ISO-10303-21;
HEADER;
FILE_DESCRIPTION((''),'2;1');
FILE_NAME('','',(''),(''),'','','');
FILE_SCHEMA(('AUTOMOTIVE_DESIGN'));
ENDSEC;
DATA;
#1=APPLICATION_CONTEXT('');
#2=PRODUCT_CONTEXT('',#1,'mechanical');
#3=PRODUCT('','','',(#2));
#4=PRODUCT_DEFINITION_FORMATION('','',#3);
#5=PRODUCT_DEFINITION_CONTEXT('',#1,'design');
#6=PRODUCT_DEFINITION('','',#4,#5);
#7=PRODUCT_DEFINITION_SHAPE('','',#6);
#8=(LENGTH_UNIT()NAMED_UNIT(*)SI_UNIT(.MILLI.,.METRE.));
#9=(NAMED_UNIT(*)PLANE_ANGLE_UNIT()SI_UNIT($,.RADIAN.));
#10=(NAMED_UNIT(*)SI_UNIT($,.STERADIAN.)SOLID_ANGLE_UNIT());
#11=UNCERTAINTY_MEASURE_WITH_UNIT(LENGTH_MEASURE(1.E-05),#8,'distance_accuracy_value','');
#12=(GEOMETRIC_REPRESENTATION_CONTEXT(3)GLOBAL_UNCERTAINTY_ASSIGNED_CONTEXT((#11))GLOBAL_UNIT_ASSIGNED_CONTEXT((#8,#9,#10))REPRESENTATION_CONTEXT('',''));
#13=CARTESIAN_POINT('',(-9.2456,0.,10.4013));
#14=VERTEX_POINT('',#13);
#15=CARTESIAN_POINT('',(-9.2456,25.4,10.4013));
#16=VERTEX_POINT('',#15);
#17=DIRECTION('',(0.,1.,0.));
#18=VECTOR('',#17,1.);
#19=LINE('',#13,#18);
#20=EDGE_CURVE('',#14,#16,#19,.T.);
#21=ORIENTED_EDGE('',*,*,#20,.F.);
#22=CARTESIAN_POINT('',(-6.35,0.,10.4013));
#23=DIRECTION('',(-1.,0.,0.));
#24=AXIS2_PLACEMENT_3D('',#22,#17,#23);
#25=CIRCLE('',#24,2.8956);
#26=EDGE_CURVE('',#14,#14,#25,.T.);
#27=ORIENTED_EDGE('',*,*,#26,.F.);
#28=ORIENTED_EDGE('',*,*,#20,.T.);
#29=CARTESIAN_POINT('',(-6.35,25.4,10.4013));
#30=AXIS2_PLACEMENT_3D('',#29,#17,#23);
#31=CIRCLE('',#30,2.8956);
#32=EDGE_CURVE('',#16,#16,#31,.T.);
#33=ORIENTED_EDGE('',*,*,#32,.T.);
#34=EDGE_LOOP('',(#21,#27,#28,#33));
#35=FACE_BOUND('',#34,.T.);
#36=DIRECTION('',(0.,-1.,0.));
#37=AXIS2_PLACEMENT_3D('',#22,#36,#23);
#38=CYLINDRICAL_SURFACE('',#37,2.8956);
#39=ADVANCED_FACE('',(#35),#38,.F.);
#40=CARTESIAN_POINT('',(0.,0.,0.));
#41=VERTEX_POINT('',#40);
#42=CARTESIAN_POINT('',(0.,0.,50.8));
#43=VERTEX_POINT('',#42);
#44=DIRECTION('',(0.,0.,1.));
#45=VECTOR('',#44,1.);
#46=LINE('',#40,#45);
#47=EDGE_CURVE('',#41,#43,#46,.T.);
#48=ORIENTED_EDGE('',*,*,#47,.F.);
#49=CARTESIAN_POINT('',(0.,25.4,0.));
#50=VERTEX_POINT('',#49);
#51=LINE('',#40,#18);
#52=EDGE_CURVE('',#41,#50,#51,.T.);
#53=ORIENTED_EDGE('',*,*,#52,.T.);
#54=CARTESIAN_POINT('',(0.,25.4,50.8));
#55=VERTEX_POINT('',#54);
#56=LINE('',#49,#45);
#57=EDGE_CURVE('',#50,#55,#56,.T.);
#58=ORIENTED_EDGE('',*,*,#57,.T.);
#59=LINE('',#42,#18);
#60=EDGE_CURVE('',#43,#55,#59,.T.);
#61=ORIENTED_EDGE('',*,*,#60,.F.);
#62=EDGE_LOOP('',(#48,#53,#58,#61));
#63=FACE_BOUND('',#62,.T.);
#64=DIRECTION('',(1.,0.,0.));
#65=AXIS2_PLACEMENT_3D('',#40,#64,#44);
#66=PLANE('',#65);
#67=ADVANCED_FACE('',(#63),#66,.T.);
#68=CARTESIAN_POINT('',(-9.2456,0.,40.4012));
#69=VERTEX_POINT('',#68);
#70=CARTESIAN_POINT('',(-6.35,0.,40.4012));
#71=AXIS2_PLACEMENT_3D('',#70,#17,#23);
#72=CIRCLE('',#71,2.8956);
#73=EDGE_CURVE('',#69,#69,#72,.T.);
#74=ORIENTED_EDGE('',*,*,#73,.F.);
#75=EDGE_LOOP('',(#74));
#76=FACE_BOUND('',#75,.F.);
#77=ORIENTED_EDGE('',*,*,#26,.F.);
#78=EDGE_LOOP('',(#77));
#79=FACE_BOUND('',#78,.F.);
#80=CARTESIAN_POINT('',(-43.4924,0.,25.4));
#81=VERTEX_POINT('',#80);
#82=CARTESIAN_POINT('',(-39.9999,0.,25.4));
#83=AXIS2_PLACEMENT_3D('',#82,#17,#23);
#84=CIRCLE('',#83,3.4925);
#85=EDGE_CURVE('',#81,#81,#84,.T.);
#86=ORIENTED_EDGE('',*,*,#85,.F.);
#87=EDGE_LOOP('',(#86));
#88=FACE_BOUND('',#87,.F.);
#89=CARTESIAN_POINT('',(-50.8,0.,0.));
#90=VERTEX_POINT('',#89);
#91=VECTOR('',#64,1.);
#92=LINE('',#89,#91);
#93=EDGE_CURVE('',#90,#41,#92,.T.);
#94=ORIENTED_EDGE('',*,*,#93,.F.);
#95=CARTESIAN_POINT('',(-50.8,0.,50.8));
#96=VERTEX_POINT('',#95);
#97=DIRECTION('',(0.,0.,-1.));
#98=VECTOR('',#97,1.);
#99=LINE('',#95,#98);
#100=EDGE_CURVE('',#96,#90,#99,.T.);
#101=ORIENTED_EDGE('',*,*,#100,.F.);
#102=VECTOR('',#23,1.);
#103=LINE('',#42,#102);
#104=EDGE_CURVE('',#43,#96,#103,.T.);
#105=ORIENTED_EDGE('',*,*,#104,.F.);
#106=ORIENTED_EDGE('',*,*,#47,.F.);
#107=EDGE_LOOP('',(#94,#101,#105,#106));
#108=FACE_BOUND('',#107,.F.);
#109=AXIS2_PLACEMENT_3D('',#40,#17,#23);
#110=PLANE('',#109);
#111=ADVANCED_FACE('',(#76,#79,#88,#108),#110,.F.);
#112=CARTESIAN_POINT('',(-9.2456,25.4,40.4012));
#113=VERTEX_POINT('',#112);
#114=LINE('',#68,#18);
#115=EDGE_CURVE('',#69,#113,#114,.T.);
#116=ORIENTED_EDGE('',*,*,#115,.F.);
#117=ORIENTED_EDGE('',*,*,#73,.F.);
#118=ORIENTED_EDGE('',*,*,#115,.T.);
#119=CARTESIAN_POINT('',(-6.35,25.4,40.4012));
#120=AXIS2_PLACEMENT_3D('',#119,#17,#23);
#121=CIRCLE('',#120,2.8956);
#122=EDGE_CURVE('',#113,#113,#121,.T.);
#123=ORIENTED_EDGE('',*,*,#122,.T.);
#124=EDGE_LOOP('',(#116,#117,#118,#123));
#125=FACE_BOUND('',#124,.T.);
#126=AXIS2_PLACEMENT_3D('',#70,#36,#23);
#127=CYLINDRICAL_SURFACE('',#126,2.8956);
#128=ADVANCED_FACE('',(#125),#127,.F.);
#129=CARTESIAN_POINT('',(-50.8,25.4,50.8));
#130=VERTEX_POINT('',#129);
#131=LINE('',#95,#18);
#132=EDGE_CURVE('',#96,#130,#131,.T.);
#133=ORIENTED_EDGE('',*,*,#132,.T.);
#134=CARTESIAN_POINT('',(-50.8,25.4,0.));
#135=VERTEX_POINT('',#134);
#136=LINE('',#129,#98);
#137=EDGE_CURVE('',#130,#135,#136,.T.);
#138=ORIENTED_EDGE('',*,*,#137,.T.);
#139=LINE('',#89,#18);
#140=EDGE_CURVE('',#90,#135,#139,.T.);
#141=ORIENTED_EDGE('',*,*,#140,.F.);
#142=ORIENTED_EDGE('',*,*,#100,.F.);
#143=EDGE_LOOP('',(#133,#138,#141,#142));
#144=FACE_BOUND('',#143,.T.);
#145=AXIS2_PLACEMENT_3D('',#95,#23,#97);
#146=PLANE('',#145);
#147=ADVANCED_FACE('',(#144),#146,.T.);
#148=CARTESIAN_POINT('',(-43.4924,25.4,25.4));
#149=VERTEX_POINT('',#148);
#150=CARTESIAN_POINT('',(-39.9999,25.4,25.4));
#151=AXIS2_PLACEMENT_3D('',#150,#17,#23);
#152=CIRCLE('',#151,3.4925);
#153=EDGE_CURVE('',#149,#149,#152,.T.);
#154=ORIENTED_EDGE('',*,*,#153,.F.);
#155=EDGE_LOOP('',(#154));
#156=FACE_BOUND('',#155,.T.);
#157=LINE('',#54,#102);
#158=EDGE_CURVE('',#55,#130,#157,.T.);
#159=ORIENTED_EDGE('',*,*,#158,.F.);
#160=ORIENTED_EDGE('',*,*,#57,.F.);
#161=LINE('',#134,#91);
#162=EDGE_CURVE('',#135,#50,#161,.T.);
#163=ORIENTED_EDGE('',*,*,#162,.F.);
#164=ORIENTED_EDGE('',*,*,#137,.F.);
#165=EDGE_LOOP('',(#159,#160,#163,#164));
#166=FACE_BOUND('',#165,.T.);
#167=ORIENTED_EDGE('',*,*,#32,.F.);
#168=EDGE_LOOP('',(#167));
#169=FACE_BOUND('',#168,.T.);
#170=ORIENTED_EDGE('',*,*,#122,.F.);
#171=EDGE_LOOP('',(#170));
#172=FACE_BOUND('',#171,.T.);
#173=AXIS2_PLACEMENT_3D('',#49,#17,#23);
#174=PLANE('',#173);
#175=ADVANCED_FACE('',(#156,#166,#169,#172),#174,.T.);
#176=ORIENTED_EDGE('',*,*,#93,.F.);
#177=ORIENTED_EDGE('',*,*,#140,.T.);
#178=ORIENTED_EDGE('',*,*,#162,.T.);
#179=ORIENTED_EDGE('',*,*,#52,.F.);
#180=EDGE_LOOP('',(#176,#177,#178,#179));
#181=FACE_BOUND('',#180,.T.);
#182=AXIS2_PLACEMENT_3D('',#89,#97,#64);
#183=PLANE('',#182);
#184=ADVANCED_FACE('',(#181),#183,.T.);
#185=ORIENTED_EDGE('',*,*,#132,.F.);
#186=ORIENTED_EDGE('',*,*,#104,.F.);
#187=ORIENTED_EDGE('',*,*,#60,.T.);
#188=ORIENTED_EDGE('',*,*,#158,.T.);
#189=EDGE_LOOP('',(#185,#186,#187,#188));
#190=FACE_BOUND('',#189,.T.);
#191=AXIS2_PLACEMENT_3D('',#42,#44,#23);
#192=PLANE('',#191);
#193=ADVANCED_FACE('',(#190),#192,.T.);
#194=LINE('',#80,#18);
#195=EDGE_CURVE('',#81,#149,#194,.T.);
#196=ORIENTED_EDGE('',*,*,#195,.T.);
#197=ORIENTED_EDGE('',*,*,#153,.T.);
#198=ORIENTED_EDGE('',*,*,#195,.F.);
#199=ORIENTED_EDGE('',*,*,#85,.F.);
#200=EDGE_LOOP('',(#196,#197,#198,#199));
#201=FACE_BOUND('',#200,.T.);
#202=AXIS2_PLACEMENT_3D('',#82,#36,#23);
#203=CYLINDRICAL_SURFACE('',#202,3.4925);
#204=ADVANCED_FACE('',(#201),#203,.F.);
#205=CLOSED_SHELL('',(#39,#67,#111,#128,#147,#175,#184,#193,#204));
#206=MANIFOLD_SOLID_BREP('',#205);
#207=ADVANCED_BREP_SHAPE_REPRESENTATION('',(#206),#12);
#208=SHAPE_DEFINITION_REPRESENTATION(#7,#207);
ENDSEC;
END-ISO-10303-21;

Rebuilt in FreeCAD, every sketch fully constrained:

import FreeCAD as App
import Part
import Sketcher
from FreeCAD import Vector
Q = App.Units.Quantity

doc = App.newDocument("Part")
body = doc.addObject("PartDesign::Body", "Body")

# Sketch on XZ plane
sketch1 = body.newObject("Sketcher::SketchObject", "Sketch")
sketch1.AttachmentSupport = (doc.getObject("XZ_Plane"), [""])
sketch1.MapMode = "FlatFace"
sketch1.addGeometry(Part.LineSegment(Vector(0, 50.8, 0), Vector(0, 0, 0)), False)
sketch1.addGeometry(Part.LineSegment(Vector(0, 0, 0), Vector(-50.8, 0, 0)), False)
sketch1.addGeometry(Part.LineSegment(Vector(-50.8, 0, 0), Vector(-50.8, 50.8, 0)), False)
sketch1.addGeometry(Part.LineSegment(Vector(-50.8, 50.8, 0), Vector(0, 50.8, 0)), False)
sketch1.addGeometry(Part.Circle(Vector(-6.3, 10.4, 0), Vector(0, 0, 1), 2.9), False)
sketch1.addGeometry(Part.Circle(Vector(-40, 25.4, 0), Vector(0, 0, 1), 3.5), False)
sketch1.addGeometry(Part.Circle(Vector(-6.3, 40.4, 0), Vector(0, 0, 1), 2.9), False)
sketch1.addConstraint(Sketcher.Constraint("Coincident", 0, 2, 1, 1))
sketch1.addConstraint(Sketcher.Constraint("Coincident", 1, 2, 2, 1))
sketch1.addConstraint(Sketcher.Constraint("Coincident", 2, 2, 3, 1))
sketch1.addConstraint(Sketcher.Constraint("Coincident", 3, 2, 0, 1))
sketch1.addConstraint(Sketcher.Constraint("Vertical", 0))
sketch1.addConstraint(Sketcher.Constraint("Horizontal", 1))
sketch1.addConstraint(Sketcher.Constraint("Vertical", 2))
sketch1.addConstraint(Sketcher.Constraint("Horizontal", 3))
sketch1.addConstraint(Sketcher.Constraint("Coincident", 0, 2, -1, 1))
sketch1.addConstraint(Sketcher.Constraint("Equal", 4, 6))
sketch1.addConstraint(Sketcher.Constraint("Vertical", 4, 3, 6, 3))
sketch1.addConstraint(Sketcher.Constraint("Equal", 3, 0))
sketch1.addConstraint(Sketcher.Constraint("DistanceX", 1, 2, 1, 1, Q("2 in")))
sketch1.addConstraint(Sketcher.Constraint("Diameter", 4, Q("0.228 in")))
sketch1.addConstraint(Sketcher.Constraint("Diameter", 5, Q("0.275 in")))
sketch1.addConstraint(Sketcher.Constraint("DistanceY", -1, 1, 5, 3, Q("1 in")))
sketch1.addConstraint(Sketcher.Constraint("DistanceX", 4, 3, -1, 1, Q("0.25 in")))
sketch1.addConstraint(Sketcher.Constraint("DistanceY", -1, 1, 4, 3, Q("0.4095 in")))
sketch1.addConstraint(Sketcher.Constraint("DistanceX", 5, 3, -1, 1, Q("1.5748 in")))
sketch1.addConstraint(Sketcher.Constraint("DistanceY", 4, 3, 6, 3, Q("1.1811 in")))
pad1 = body.newObject("PartDesign::Pad", "Pad")
pad1.Profile = sketch1
pad1.Length = Q("1 in")
pad1.Reversed = True

doc.recompute()
